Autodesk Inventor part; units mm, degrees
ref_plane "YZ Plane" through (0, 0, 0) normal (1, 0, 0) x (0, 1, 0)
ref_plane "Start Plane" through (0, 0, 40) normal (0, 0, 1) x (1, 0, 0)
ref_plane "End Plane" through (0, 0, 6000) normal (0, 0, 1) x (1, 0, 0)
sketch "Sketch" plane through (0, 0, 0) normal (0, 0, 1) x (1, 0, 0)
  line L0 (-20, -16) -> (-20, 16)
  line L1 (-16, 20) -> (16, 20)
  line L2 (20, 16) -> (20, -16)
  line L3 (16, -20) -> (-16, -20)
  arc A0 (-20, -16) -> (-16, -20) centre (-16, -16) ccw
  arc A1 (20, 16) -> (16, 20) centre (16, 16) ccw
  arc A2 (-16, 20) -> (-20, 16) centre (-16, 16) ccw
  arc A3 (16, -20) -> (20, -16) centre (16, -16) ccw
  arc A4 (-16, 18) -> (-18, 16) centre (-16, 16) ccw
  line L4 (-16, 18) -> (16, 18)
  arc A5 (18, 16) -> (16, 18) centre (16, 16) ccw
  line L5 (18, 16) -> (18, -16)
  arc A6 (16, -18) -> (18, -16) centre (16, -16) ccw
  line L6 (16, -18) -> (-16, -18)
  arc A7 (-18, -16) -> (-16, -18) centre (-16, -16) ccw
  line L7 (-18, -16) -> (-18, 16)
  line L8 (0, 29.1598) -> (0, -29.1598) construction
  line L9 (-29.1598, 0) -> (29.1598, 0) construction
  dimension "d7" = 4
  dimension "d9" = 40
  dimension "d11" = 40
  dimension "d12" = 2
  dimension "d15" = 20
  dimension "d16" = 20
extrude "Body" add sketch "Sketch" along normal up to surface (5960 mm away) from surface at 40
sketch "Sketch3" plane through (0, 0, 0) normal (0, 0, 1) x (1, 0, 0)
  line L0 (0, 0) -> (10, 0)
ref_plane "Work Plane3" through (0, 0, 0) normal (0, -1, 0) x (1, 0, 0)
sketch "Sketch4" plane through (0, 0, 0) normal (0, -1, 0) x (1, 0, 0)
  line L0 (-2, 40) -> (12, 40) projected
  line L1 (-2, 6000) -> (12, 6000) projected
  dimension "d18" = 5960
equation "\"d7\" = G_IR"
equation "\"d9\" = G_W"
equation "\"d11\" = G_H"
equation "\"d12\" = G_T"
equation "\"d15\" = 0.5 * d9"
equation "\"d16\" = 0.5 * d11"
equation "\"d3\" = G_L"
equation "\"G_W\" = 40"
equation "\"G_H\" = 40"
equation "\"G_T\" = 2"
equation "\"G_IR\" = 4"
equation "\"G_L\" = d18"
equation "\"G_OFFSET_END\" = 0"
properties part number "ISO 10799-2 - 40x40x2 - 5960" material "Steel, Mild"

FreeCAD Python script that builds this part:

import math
import FreeCAD as App
import Part
import Sketcher
Q = App.Units.Quantity

doc = App.newDocument("Part")
body = doc.addObject("PartDesign::Body", "Body")

sketch1 = doc.addObject("Sketcher::SketchObject", "Sketch")
body.addObject(sketch1)
sketch1.AttachmentSupport = (doc.XY_Plane, [""])
sketch1.MapMode = "FlatFace"
sketch1.AttachmentOffset = App.Placement(App.Vector(0, 0, 40), App.Rotation())
sketch1.addGeometry([
    Part.LineSegment(App.Vector(-20, 16, 0), App.Vector(-20, -16, 0)),
    Part.ArcOfCircle(Part.Circle(App.Vector(-16, -16, 0), App.Vector(0, 0, 1), 4), math.radians(180), math.radians(270)),
    Part.LineSegment(App.Vector(-16, -20, 0), App.Vector(16, -20, 0)),
    Part.ArcOfCircle(Part.Circle(App.Vector(16, -16, 0), App.Vector(0, 0, 1), 4), math.radians(-90), math.radians(0)),
    Part.LineSegment(App.Vector(20, -16, 0), App.Vector(20, 16, 0)),
    Part.ArcOfCircle(Part.Circle(App.Vector(16, 16, 0), App.Vector(0, 0, 1), 4), math.radians(0), math.radians(90)),
    Part.LineSegment(App.Vector(16, 20, 0), App.Vector(-16, 20, 0)),
    Part.ArcOfCircle(Part.Circle(App.Vector(-16, 16, 0), App.Vector(0, 0, 1), 4), math.radians(90), math.radians(180)),
    Part.ArcOfCircle(Part.Circle(App.Vector(-16, 16, 0), App.Vector(0, 0, 1), 2), math.radians(90), math.radians(180)),
    Part.LineSegment(App.Vector(-16, 18, 0), App.Vector(16, 18, 0)),
    Part.ArcOfCircle(Part.Circle(App.Vector(16, 16, 0), App.Vector(0, 0, 1), 2), math.radians(0), math.radians(90)),
    Part.LineSegment(App.Vector(18, 16, 0), App.Vector(18, -16, 0)),
    Part.ArcOfCircle(Part.Circle(App.Vector(16, -16, 0), App.Vector(0, 0, 1), 2), math.radians(-90), math.radians(0)),
    Part.LineSegment(App.Vector(16, -18, 0), App.Vector(-16, -18, 0)),
    Part.ArcOfCircle(Part.Circle(App.Vector(-16, -16, 0), App.Vector(0, 0, 1), 2), math.radians(180), math.radians(270)),
    Part.LineSegment(App.Vector(-18, -16, 0), App.Vector(-18, 16, 0)),
], False)
sketch1.addConstraint([
    Sketcher.Constraint("Tangent", 0, 2, 1, 1),
    Sketcher.Constraint("Tangent", 1, 2, 2, 1),
    Sketcher.Constraint("Tangent", 2, 2, 3, 1),
    Sketcher.Constraint("Tangent", 3, 2, 4, 1),
    Sketcher.Constraint("Tangent", 4, 2, 5, 1),
    Sketcher.Constraint("Tangent", 5, 2, 6, 1),
    Sketcher.Constraint("Tangent", 6, 2, 7, 1),
    Sketcher.Constraint("Tangent", 7, 2, 0, 1),
    Sketcher.Constraint("Tangent", 8, 1, 9, 1),
    Sketcher.Constraint("Tangent", 9, 2, 10, 2),
    Sketcher.Constraint("Tangent", 10, 1, 11, 1),
    Sketcher.Constraint("Tangent", 11, 2, 12, 2),
    Sketcher.Constraint("Tangent", 12, 1, 13, 1),
    Sketcher.Constraint("Tangent", 13, 2, 14, 2),
    Sketcher.Constraint("Tangent", 14, 1, 15, 1),
    Sketcher.Constraint("Tangent", 15, 2, 8, 2),
    Sketcher.Constraint("Vertical", 0),
    Sketcher.Constraint("Horizontal", 2),
    Sketcher.Constraint("Vertical", 4),
    Sketcher.Constraint("Horizontal", 6),
    Sketcher.Constraint("Horizontal", 9),
    Sketcher.Constraint("Vertical", 11),
    Sketcher.Constraint("Horizontal", 13),
    Sketcher.Constraint("Vertical", 15),
    Sketcher.Constraint("Coincident", 8, 3, 7, 3),
    Sketcher.Constraint("Coincident", 10, 3, 5, 3),
    Sketcher.Constraint("Coincident", 12, 3, 3, 3),
    Sketcher.Constraint("Equal", 1, 3),
    Sketcher.Constraint("Equal", 3, 5),
    Sketcher.Constraint("Equal", 5, 7),
    Sketcher.Constraint("Equal", 12, 14),
    Sketcher.Constraint("Symmetric", 1, 3, 5, 3, -1, 1),
    Sketcher.Constraint("Equal", 13, 0),
    Sketcher.Constraint("Radius", 1, Q("4 mm")),
    Sketcher.Constraint("Radius", 8, Q("2 mm")),
    Sketcher.Constraint("DistanceX", 0, 2, -1, 1, Q("20 mm")),
])
pad1 = doc.addObject("PartDesign::Pad", "Pad")
body.addObject(pad1)
pad1.Profile = sketch1
pad1.Length = 5960

doc.recompute()
